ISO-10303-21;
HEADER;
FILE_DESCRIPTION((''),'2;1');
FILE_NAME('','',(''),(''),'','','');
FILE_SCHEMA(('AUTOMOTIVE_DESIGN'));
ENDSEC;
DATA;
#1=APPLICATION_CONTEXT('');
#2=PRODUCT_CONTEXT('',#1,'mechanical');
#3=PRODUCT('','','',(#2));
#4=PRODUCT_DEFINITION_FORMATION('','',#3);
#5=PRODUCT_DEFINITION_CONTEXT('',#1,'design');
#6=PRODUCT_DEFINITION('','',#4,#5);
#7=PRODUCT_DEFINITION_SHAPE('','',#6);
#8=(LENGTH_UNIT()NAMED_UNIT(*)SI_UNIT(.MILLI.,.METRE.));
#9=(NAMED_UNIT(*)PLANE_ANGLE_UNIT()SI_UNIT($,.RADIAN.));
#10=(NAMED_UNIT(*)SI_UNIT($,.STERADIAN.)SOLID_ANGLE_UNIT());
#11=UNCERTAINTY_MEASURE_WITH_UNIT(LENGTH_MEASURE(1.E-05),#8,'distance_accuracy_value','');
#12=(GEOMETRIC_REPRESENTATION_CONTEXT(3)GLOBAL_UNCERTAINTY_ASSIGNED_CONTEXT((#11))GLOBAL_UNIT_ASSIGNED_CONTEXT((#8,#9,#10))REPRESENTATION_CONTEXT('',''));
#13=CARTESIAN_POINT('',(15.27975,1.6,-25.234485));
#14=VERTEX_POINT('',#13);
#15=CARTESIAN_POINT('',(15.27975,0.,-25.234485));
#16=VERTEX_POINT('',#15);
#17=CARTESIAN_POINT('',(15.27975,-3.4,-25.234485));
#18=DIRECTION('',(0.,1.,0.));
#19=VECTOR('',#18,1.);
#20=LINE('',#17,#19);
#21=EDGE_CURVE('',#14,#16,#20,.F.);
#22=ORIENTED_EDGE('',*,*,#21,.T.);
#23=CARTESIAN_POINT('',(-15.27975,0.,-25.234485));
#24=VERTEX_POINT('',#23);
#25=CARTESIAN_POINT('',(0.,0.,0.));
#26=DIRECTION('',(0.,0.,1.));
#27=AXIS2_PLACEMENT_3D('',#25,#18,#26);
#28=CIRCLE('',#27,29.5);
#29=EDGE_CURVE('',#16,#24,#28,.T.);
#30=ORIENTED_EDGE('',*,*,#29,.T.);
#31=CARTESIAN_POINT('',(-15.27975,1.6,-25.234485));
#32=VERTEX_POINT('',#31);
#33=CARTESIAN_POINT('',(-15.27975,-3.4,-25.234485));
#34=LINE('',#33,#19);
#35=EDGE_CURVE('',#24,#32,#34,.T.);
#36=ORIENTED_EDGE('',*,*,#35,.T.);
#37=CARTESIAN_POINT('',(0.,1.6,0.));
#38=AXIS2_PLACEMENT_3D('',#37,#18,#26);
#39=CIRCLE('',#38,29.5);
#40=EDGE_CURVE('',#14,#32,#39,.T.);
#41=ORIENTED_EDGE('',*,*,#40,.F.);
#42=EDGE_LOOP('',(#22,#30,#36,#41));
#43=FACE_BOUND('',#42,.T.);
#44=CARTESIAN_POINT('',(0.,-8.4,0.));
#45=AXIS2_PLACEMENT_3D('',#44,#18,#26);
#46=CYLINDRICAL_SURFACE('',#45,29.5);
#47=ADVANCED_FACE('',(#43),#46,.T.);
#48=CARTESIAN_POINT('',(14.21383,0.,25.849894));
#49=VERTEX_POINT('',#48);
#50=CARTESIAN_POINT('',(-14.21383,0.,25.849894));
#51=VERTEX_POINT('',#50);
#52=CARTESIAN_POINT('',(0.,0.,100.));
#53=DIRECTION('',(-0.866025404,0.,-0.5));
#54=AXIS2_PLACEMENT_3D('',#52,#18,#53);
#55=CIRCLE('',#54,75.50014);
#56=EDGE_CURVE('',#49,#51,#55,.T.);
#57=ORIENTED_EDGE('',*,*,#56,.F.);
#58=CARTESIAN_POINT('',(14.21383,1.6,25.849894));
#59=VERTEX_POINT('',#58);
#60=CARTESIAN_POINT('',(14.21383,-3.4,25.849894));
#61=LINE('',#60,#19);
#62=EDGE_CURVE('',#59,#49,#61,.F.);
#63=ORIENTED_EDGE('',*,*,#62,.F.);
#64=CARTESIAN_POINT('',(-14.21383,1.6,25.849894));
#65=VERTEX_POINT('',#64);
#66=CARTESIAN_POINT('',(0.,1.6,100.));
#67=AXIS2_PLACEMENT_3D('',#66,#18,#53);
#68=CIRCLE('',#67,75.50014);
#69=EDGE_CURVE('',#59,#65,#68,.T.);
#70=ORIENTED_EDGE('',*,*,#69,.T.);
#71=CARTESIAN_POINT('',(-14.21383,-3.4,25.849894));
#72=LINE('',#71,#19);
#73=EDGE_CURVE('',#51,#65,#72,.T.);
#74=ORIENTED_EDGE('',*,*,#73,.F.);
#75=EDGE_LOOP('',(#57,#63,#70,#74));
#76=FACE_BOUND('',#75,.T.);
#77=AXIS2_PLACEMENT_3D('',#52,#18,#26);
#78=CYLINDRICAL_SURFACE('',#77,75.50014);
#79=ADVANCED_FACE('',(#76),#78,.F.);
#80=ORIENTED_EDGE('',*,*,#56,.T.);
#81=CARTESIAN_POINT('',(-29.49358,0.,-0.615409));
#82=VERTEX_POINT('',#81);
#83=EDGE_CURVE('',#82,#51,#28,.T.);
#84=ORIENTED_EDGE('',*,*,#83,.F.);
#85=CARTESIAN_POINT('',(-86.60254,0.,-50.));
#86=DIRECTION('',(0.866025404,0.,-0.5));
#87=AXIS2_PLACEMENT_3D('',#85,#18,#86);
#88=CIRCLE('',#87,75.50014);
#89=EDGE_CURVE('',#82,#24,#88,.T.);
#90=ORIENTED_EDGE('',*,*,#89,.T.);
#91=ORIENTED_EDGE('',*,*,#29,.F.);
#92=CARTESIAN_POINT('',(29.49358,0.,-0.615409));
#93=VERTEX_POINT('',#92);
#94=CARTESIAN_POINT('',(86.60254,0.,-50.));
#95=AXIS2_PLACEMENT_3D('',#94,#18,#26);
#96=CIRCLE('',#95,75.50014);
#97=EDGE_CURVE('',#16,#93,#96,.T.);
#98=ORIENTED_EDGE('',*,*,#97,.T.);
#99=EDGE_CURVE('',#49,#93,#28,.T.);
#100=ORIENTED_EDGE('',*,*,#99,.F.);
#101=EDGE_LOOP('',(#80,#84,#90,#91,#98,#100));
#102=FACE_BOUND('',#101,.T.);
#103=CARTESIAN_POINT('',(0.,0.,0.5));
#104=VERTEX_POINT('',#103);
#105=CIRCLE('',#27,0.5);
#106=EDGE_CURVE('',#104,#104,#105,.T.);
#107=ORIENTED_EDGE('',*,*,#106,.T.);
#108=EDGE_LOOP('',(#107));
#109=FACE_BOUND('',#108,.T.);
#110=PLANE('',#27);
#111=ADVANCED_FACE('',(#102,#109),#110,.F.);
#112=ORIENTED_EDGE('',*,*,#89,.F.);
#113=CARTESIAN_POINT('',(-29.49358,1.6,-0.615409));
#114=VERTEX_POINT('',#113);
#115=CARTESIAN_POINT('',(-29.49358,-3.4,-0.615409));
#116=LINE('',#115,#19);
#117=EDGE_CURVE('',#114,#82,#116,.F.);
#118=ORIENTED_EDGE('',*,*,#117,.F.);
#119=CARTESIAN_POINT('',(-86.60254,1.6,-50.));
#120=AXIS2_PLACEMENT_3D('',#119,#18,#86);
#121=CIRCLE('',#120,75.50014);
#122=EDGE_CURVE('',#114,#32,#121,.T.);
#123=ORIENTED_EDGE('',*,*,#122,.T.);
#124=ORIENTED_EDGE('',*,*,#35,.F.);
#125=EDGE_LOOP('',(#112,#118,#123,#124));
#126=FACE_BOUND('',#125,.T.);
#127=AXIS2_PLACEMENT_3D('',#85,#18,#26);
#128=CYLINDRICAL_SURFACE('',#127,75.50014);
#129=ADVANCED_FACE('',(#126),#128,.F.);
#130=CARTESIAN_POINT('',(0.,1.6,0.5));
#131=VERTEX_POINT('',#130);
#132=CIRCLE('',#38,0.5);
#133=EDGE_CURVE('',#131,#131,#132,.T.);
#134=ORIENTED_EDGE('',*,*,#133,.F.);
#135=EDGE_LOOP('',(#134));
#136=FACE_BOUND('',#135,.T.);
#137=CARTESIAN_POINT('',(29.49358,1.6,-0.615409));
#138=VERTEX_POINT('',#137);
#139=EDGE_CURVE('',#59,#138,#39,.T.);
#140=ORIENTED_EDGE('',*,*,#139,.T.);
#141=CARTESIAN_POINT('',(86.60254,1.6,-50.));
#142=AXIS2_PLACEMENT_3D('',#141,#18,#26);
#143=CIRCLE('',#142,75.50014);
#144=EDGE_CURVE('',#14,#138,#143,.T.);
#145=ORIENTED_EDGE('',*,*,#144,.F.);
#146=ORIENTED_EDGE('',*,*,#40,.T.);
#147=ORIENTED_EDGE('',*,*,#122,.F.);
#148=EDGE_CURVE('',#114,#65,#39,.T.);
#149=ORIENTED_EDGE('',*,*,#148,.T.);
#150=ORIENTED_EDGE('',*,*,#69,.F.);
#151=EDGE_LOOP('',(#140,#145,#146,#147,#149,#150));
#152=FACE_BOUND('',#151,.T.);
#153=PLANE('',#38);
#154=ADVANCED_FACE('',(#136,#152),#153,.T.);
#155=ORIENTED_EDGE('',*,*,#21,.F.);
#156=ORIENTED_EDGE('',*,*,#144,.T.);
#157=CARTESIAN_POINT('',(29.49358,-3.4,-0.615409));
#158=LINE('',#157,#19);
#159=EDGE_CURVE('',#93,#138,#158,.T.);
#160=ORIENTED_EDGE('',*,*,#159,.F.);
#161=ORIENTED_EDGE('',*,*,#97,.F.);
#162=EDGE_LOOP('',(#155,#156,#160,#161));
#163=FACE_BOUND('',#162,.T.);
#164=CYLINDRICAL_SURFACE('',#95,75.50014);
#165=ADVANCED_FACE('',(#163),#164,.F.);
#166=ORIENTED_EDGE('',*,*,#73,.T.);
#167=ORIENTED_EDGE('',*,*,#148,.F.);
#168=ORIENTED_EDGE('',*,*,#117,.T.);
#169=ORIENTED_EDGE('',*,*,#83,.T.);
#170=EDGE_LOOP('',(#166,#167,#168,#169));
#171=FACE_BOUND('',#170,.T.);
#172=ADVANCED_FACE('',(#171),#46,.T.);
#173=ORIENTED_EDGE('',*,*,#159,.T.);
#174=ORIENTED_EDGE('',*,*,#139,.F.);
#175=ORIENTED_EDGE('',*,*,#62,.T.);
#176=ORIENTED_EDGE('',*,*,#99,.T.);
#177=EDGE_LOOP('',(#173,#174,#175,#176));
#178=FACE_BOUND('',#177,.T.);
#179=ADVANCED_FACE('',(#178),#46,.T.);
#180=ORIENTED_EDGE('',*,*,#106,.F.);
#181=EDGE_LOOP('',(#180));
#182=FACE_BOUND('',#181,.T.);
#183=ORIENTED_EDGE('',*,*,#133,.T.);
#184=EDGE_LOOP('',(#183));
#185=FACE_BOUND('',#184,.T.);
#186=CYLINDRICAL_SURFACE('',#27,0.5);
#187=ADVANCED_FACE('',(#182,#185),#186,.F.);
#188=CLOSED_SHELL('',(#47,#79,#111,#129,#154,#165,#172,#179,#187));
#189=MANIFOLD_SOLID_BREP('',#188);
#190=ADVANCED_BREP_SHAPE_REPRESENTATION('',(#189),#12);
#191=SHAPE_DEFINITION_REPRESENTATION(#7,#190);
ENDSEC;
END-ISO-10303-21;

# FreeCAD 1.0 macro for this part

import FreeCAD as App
import Part
import Sketcher

V = App.Vector

doc = App.newDocument("Part")
body = doc.addObject("PartDesign::Body", "Body")

sketch1 = body.newObject("Sketcher::SketchObject", "Sketch")
sketch1.AttachmentSupport = (doc.getObject("XZ_Plane"), [""])
sketch1.MapMode = "FlatFace"
sketch1.addGeometry(Part.Circle(V(0, 0, 0), V(0, 0, 1), 37), False)
sketch1.addConstraint([
    Sketcher.Constraint("Coincident", 0, 3, -1, 1),
    Sketcher.Constraint("Diameter", 0, 74.0),
])
pad1 = body.newObject("PartDesign::Pad", "Pad")
pad1.Profile = sketch1
pad1.Length = 1.6
pad1.Reversed = True

sketch2 = body.newObject("Sketcher::SketchObject", "Sketch001")
sketch2.AttachmentSupport = (doc.getObject("XZ_Plane"), [""])
sketch2.MapMode = "FlatFace"
sketch2.AttachmentOffset = App.Placement(V(0, 0, -1.6), App.Rotation())
sketch2.addGeometry(Part.Circle(V(87, -50, 0), V(0, 0, 1), 76), False)
sketch2.addConstraint([
    Sketcher.Constraint("DistanceY", 0, 3, -1, 1, 50.0),
    Sketcher.Constraint("Diameter", 0, 151.00028),
    Sketcher.Constraint("DistanceX", -1, 1, 0, 3, 86.60254),
])
pocket1 = body.newObject("PartDesign::Pocket", "Pocket")
pocket1.Profile = sketch2
pocket1.Type = "ThroughAll"
pocket1.Reversed = True

sketch3 = body.newObject("Sketcher::SketchObject", "Sketch002")
sketch3.AttachmentSupport = (doc.getObject("XZ_Plane"), [""])
sketch3.MapMode = "FlatFace"
sketch3.AttachmentOffset = App.Placement(V(0, 0, -1.6), App.Rotation())
sketch3.addGeometry(Part.Circle(V(0, 0, 0), V(0, 0, 1), 0.5), False)
sketch3.addConstraint([
    Sketcher.Constraint("Coincident", 0, 3, -1, 1),
    Sketcher.Constraint("Diameter", 0, 1.0),
])
pocket2 = body.newObject("PartDesign::Pocket", "Pocket001")
pocket2.Profile = sketch3
pocket2.Type = "ThroughAll"
pocket2.Reversed = True

sketch4 = body.newObject("Sketcher::SketchObject", "Sketch003")
sketch4.AttachmentSupport = (doc.getObject("XZ_Plane"), [""])
sketch4.MapMode = "FlatFace"
sketch4.AttachmentOffset = App.Placement(V(0, 0, -1.6), App.Rotation())
sketch4.addGeometry([
    Part.Circle(V(2.8, -31.9, 0), V(0, 0, 1), 1.8),
    Part.Circle(V(26.2, 18.4, 0), V(0, 0, 1), 1.8),
    Part.Circle(V(-29, 13.5, 0), V(0, 0, 1), 1.8),
], False)
sketch4.addConstraint([
    Sketcher.Constraint("Equal", 0, 1),
    Sketcher.Constraint("Equal", 1, 2),
    Sketcher.Constraint("Diameter", 0, 3.5),
    Sketcher.Constraint("DistanceY", 0, 3, -1, 1, 31.87823),
    Sketcher.Constraint("DistanceX", 2, 3, -1, 1, 29.001849),
    Sketcher.Constraint("DistanceX", 0, 3, 1, 3, 23.423882),
    Sketcher.Constraint("DistanceY", 2, 3, 1, 3, 4.830662),
    Sketcher.Constraint("DistanceX", -1, 1, 0, 3, 2.788984),
    Sketcher.Constraint("DistanceY", -1, 1, 1, 3, 18.354446),
])
pocket3 = body.newObject("PartDesign::Pocket", "Pocket002")
pocket3.Profile = sketch4
pocket3.Type = "ThroughAll"
pocket3.Reversed = True

sketch5 = body.newObject("Sketcher::SketchObject", "Sketch004")
sketch5.AttachmentSupport = (doc.getObject("XZ_Plane"), [""])
sketch5.MapMode = "FlatFace"
sketch5.AttachmentOffset = App.Placement(V(0, 0, -1.6), App.Rotation())
sketch5.addGeometry(Part.Circle(V(-5.9, -33.5, 0), V(0, 0, 1), 1.6), False)
sketch5.addConstraint([
    Sketcher.Constraint("Diameter", 0, 3.3),
    Sketcher.Constraint("DistanceX", 0, 3, -1, 1, 5.904038),
    Sketcher.Constraint("DistanceY", 0, 3, -1, 1, 33.483464),
])
pocket4 = body.newObject("PartDesign::Pocket", "Pocket003")
pocket4.Profile = sketch5
pocket4.Type = "ThroughAll"
pocket4.Reversed = True
doc.recompute()

polarpattern = body.newObject("PartDesign::PolarPattern", "PolarPattern")
polarpattern.Originals = [pocket1, pocket4]
polarpattern.Axis = (doc.getObject("Y_Axis"), [""])
polarpattern.Angle = 360
polarpattern.Occurrences = 3
body.Tip = polarpattern

sketch6 = body.newObject("Sketcher::SketchObject", "Sketch005")
sketch6.AttachmentSupport = (doc.getObject("XZ_Plane"), [""])
sketch6.MapMode = "FlatFace"
sketch6.AttachmentOffset = App.Placement(V(0, 0, -1.6), App.Rotation())
sketch6.addGeometry([
    Part.LineSegment(V(-47, -48, 0), V(-47, 39, 0)),
    Part.LineSegment(V(-47, 39, 0), V(47, 39, 0)),
    Part.LineSegment(V(47, 39, 0), V(47, -48, 0)),
    Part.LineSegment(V(47, -48, 0), V(-47, -48, 0)),
    Part.Circle(V(0, 0, 0), V(0, 0, 1), 30),
], False)
sketch6.addConstraint([
    Sketcher.Constraint("Coincident", 0, 2, 1, 1),
    Sketcher.Constraint("Coincident", 1, 2, 2, 1),
    Sketcher.Constraint("Coincident", 2, 2, 3, 1),
    Sketcher.Constraint("Coincident", 3, 2, 0, 1),
    Sketcher.Constraint("Vertical", 0),
    Sketcher.Constraint("Horizontal", 1),
    Sketcher.Constraint("Vertical", 2),
    Sketcher.Constraint("Horizontal", 3),
    Sketcher.Constraint("Coincident", 4, 3, -1, 1),
    Sketcher.Constraint("Diameter", 4, 59.0),
    Sketcher.Constraint("DistanceX", 1, 1, 1, 2, 94.454),
    Sketcher.Constraint("DistanceY", 0, 1, 0, 2, 86.922),
    Sketcher.Constraint("DistanceX", 0, 2, -1, 1, 47.227),
    Sketcher.Constraint("DistanceY", -1, 1, 0, 2, 39.133),
])
pocket5 = body.newObject("PartDesign::Pocket", "Pocket004")
pocket5.Profile = sketch6
pocket5.Length = 10
pocket5.Reversed = True

doc.recompute()
